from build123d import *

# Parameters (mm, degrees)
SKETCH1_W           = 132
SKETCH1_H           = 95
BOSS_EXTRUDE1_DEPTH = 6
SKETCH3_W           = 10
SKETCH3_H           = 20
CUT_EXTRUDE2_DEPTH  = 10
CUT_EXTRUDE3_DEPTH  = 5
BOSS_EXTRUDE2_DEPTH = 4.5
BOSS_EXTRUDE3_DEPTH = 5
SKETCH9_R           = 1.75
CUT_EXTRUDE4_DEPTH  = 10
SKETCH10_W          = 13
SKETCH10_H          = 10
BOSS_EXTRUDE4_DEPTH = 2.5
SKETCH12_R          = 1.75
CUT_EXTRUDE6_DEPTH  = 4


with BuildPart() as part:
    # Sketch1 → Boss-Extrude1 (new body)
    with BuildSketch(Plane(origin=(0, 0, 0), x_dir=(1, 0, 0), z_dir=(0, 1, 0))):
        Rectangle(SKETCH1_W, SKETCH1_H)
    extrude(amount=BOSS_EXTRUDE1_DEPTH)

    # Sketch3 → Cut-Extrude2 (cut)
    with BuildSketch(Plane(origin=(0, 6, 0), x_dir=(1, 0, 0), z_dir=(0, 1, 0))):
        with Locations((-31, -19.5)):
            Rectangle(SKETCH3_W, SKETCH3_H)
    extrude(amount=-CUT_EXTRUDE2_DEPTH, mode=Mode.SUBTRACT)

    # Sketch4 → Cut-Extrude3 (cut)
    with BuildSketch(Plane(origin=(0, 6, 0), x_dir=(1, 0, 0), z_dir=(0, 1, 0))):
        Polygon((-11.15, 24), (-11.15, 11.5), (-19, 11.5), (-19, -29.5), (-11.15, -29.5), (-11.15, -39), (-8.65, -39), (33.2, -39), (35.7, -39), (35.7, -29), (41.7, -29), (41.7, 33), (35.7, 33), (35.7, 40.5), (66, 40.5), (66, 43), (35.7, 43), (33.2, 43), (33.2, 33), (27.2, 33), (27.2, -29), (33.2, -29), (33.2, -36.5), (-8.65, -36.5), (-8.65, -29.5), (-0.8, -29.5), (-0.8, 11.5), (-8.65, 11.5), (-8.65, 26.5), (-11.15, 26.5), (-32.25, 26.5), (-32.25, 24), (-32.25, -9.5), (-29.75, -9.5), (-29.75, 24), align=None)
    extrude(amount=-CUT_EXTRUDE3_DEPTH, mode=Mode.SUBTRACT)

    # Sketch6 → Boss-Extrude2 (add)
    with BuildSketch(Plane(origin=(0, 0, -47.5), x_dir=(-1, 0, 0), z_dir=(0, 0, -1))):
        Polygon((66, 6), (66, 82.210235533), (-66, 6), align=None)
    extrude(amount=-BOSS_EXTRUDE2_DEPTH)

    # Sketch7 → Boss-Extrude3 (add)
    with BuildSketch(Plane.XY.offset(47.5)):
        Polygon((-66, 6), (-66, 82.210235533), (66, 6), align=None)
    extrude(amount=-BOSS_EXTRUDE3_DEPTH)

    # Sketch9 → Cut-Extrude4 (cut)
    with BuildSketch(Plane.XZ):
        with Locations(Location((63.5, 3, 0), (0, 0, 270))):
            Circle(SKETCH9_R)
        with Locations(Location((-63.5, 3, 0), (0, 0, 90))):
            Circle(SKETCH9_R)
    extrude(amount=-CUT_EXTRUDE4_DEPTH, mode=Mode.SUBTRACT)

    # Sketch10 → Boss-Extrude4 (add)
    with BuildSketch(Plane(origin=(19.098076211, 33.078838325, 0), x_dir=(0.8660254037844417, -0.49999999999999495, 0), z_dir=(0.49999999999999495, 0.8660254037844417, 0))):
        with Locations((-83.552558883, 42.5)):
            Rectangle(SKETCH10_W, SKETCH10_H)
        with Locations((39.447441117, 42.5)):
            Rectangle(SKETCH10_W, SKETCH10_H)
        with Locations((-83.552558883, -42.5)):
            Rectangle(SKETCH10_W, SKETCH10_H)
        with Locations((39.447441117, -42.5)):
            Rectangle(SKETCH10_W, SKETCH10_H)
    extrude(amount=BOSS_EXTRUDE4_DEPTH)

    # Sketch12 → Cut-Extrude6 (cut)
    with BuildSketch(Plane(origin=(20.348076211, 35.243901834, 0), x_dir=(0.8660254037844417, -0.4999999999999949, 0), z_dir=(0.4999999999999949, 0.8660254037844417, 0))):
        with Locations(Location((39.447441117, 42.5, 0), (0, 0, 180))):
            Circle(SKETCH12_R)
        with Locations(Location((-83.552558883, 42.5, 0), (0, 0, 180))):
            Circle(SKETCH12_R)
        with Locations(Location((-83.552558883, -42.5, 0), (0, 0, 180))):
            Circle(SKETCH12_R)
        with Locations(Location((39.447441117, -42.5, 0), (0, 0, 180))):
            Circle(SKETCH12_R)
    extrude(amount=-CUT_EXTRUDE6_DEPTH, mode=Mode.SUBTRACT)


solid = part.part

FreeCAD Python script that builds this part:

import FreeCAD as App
import Part
import Sketcher
from FreeCAD import Vector
Q = App.Units.Quantity


def add_polygon(sketch, points):
    """Adds a closed chain of lines whose ends are joined by coincident constraints."""
    first, n = sketch.GeometryCount, len(points)
    for a, b in zip(points, points[1:] + points[:1]):
        sketch.addGeometry(Part.LineSegment(App.Vector(*a, 0), App.Vector(*b, 0)), False)
    for i in range(n):
        sketch.addConstraint(Sketcher.Constraint("Coincident", first + i, 2, first + (i + 1) % n, 1))

doc = App.newDocument("Part")
body = doc.addObject("PartDesign::Body", "Body")

# Sketch on XZ plane
sketch1 = body.newObject("Sketcher::SketchObject", "Sketch")
sketch1.AttachmentSupport = (doc.getObject("XZ_Plane"), [""])
sketch1.MapMode = "FlatFace"
add_polygon(sketch1, [(-66, -47.5), (-66, 47.5), (66, 47.5), (66, -47.5)])  # lines 0-3
sketch1.addConstraint(Sketcher.Constraint("Vertical", 0))
sketch1.addConstraint(Sketcher.Constraint("Horizontal", 1))
sketch1.addConstraint(Sketcher.Constraint("Vertical", 2))
sketch1.addConstraint(Sketcher.Constraint("Horizontal", 3))
sketch1.addConstraint(Sketcher.Constraint("Symmetric", 0, 2, 2, 2, -1, 1))
sketch1.addConstraint(Sketcher.Constraint("DistanceX", 1, 1, 1, 2, Q("132 mm")))
sketch1.addConstraint(Sketcher.Constraint("DistanceY", 0, 1, 0, 2, Q("95 mm")))
pad1 = body.newObject("PartDesign::Pad", "Pad")
pad1.Profile = sketch1
pad1.Length = 6
pad1.Reversed = True

# Sketch on XZ plane
sketch2 = body.newObject("Sketcher::SketchObject", "Sketch001")
sketch2.AttachmentSupport = (doc.getObject("XZ_Plane"), [""])
sketch2.MapMode = "FlatFace"
sketch2.AttachmentOffset = App.Placement(Vector(0, 0, -6), App.Rotation())
add_polygon(sketch2, [(-36, 9.5), (-36, 29.5), (-26, 29.5), (-26, 9.5)])  # lines 0-3
sketch2.addConstraint(Sketcher.Constraint("Vertical", 0))
sketch2.addConstraint(Sketcher.Constraint("Horizontal", 1))
sketch2.addConstraint(Sketcher.Constraint("Vertical", 2))
sketch2.addConstraint(Sketcher.Constraint("Horizontal", 3))
sketch2.addConstraint(Sketcher.Constraint("DistanceX", 1, 1, 1, 2, Q("10 mm")))
sketch2.addConstraint(Sketcher.Constraint("DistanceY", 0, 1, 0, 2, Q("20 mm")))
sketch2.addConstraint(Sketcher.Constraint("DistanceX", 0, 2, -1, 1, Q("36 mm")))
sketch2.addConstraint(Sketcher.Constraint("DistanceY", -1, 1, 0, 2, Q("29.5 mm")))
pocket1 = body.newObject("PartDesign::Pocket", "Pocket")
pocket1.Profile = sketch2
pocket1.Length = 10
pocket1.Reversed = True

# Sketch on XZ plane
sketch3 = body.newObject("Sketcher::SketchObject", "Sketch002")
sketch3.AttachmentSupport = (doc.getObject("XZ_Plane"), [""])
sketch3.MapMode = "FlatFace"
sketch3.AttachmentOffset = App.Placement(Vector(0, 0, -6), App.Rotation())
add_polygon(sketch3, [(-11.15, -24), (-11.15, -11.5), (-19, -11.5), (-19, 29.5), (-11.15, 29.5), (-11.15, 39), (35.7, 39), (35.7, 29), (41.7, 29), (41.7, -33), (35.7, -33), (35.7, -40.5), (66, -40.5), (66, -43), (33.2, -43), (33.2, -33), (27.2, -33), (27.2, 29), (33.2, 29), (33.2, 36.5), (-8.65, 36.5), (-8.65, 29.5), (-0.8, 29.5), (-0.8, -11.5), (-8.65, -11.5), (-8.65, -26.5), (-32.25, -26.5), (-32.25, 9.5), (-29.75, 9.5), (-29.75, -24)])  # lines 0-29
sketch3.addConstraint(Sketcher.Constraint("Vertical", 0))
sketch3.addConstraint(Sketcher.Constraint("Horizontal", 1))
sketch3.addConstraint(Sketcher.Constraint("Vertical", 2))
sketch3.addConstraint(Sketcher.Constraint("Horizontal", 3))
sketch3.addConstraint(Sketcher.Constraint("Vertical", 4))
sketch3.addConstraint(Sketcher.Constraint("Horizontal", 5))
sketch3.addConstraint(Sketcher.Constraint("Vertical", 6))
sketch3.addConstraint(Sketcher.Constraint("Horizontal", 7))
sketch3.addConstraint(Sketcher.Constraint("Vertical", 8))
sketch3.addConstraint(Sketcher.Constraint("Horizontal", 9))
sketch3.addConstraint(Sketcher.Constraint("Vertical", 10))
sketch3.addConstraint(Sketcher.Constraint("Horizontal", 11))
sketch3.addConstraint(Sketcher.Constraint("Vertical", 12))
sketch3.addConstraint(Sketcher.Constraint("Horizontal", 13))
sketch3.addConstraint(Sketcher.Constraint("Vertical", 14))
sketch3.addConstraint(Sketcher.Constraint("Horizontal", 15))
sketch3.addConstraint(Sketcher.Constraint("Vertical", 16))
sketch3.addConstraint(Sketcher.Constraint("Horizontal", 17))
sketch3.addConstraint(Sketcher.Constraint("Vertical", 18))
sketch3.addConstraint(Sketcher.Constraint("Horizontal", 19))
sketch3.addConstraint(Sketcher.Constraint("Vertical", 20))
sketch3.addConstraint(Sketcher.Constraint("Horizontal", 21))
sketch3.addConstraint(Sketcher.Constraint("Vertical", 22))
sketch3.addConstraint(Sketcher.Constraint("Horizontal", 23))
sketch3.addConstraint(Sketcher.Constraint("Vertical", 24))
sketch3.addConstraint(Sketcher.Constraint("Horizontal", 25))
sketch3.addConstraint(Sketcher.Constraint("Vertical", 26))
sketch3.addConstraint(Sketcher.Constraint("Horizontal", 27))
sketch3.addConstraint(Sketcher.Constraint("Vertical", 28))
sketch3.addConstraint(Sketcher.Constraint("Horizontal", 29))
sketch3.addConstraint(Sketcher.Constraint("Horizontal", 9, 2, 14, 2))
sketch3.addConstraint(Sketcher.Constraint("Horizontal", 7, 2, 16, 2))
sketch3.addConstraint(Sketcher.Constraint("Horizontal", 3, 2, 20, 2))
sketch3.addConstraint(Sketcher.Constraint("Horizontal", 1, 2, 22, 2))
sketch3.addConstraint(Sketcher.Constraint("Vertical", 0, 2, 3, 2))
sketch3.addConstraint(Sketcher.Constraint("Vertical", 6, 2, 9, 2))
sketch3.addConstraint(Sketcher.Constraint("Vertical", 14, 2, 17, 2))
sketch3.addConstraint(Sketcher.Constraint("Vertical", 20, 2, 23, 2))
sketch3.addConstraint(Sketcher.Constraint("Equal", 9, 15))
sketch3.addConstraint(Sketcher.Constraint("Equal", 3, 21))
sketch3.addConstraint(Sketcher.Constraint("Equal", 27, 12))
sketch3.addConstraint(Sketcher.Constraint("Equal", 6, 14))
sketch3.addConstraint(Sketcher.Constraint("Equal", 10, 18))
sketch3.addConstraint(Sketcher.Constraint("DistanceX", 7, 1, 7, 2, Q("6 mm")))
sketch3.addConstraint(Sketcher.Constraint("DistanceY", 2, 1, 2, 2, Q("41 mm")))
sketch3.addConstraint(Sketcher.Constraint("DistanceY", 6, 2, 6, 1, Q("10 mm")))
sketch3.addConstraint(Sketcher.Constraint("DistanceY", 8, 2, 8, 1, Q("62 mm")))
sketch3.addConstraint(Sketcher.Constraint("DistanceY", 20, 2, 20, 1, Q("7 mm")))
sketch3.addConstraint(Sketcher.Constraint("DistanceY", 24, 2, 24, 1, Q("15 mm")))
sketch3.addConstraint(Sketcher.Constraint("DistanceY", 26, 1, 26, 2, Q("36 mm")))
sketch3.addConstraint(Sketcher.Constraint("DistanceX", 11, 1, 11, 2, Q("30.3 mm")))
sketch3.addConstraint(Sketcher.Constraint("DistanceX", 13, 2, 13, 1, Q("32.8 mm")))
sketch3.addConstraint(Sketcher.Constraint("DistanceX", 25, 2, 25, 1, Q("23.6 mm")))
sketch3.addConstraint(Sketcher.Constraint("DistanceX", 27, 1, 27, 2, Q("2.5 mm")))
sketch3.addConstraint(Sketcher.Constraint("DistanceX", 29, 1, 29, 2, Q("18.6 mm")))
sketch3.addConstraint(Sketcher.Constraint("DistanceY", 0, 1, 0, 2, Q("12.5 mm")))
sketch3.addConstraint(Sketcher.Constraint("DistanceX", 1, 2, -1, 1, Q("19 mm")))
sketch3.addConstraint(Sketcher.Constraint("DistanceY", -1, 1, 4, 2, Q("39 mm")))
sketch3.addConstraint(Sketcher.Constraint("DistanceX", -1, 1, 11, 2, Q("66 mm")))
sketch3.addConstraint(Sketcher.Constraint("DistanceX", 22, 2, 15, 2, Q("28 mm")))
pocket2 = body.newObject("PartDesign::Pocket", "Pocket001")
pocket2.Profile = sketch3
pocket2.Length = 5
pocket2.Reversed = True

# Sketch on XY plane
sketch4 = body.newObject("Sketcher::SketchObject", "Sketch003")
sketch4.AttachmentSupport = (doc.getObject("XY_Plane"), [""])
sketch4.MapMode = "FlatFace"
sketch4.AttachmentOffset = App.Placement(Vector(0, 0, -47.5), App.Rotation())
add_polygon(sketch4, [(-66, 6), (-66, 82.210236), (66, 6)])  # lines 0-2
sketch4.addConstraint(Sketcher.Constraint("Vertical", 0))
sketch4.addConstraint(Sketcher.Constraint("Horizontal", 2))
sketch4.addConstraint(Sketcher.Constraint("DistanceX", 2, 2, 2, 1, Q("132 mm")))
sketch4.addConstraint(Sketcher.Constraint("Angle", 1, Q("-30 deg")))
sketch4.addConstraint(Sketcher.Constraint("DistanceX", 0, 2, -1, 1, Q("66 mm")))
sketch4.addConstraint(Sketcher.Constraint("DistanceY", -1, 1, 1, 2, Q("6 mm")))
pad2 = body.newObject("PartDesign::Pad", "Pad001")
pad2.Profile = sketch4
pad2.Length = 4.5

# Sketch on XY plane
sketch5 = body.newObject("Sketcher::SketchObject", "Sketch004")
sketch5.AttachmentSupport = (doc.getObject("XY_Plane"), [""])
sketch5.MapMode = "FlatFace"
sketch5.AttachmentOffset = App.Placement(Vector(0, 0, 47.5), App.Rotation())
add_polygon(sketch5, [(-66, 82.210236), (-66, 6), (66, 6)])  # lines 0-2
sketch5.addConstraint(Sketcher.Constraint("Vertical", 0))
sketch5.addConstraint(Sketcher.Constraint("Horizontal", 1))
sketch5.addConstraint(Sketcher.Constraint("DistanceX", 1, 1, 1, 2, Q("132 mm")))
sketch5.addConstraint(Sketcher.Constraint("Angle", 2, Q("150 deg")))
sketch5.addConstraint(Sketcher.Constraint("DistanceX", 0, 2, -1, 1, Q("66 mm")))
sketch5.addConstraint(Sketcher.Constraint("DistanceY", -1, 1, 0, 2, Q("6 mm")))
pad3 = body.newObject("PartDesign::Pad", "Pad002")
pad3.Profile = sketch5
pad3.Length = 5
pad3.Reversed = True

# Sketch on XZ plane
sketch6 = body.newObject("Sketcher::SketchObject", "Sketch005")
sketch6.AttachmentSupport = (doc.getObject("XZ_Plane"), [""])
sketch6.MapMode = "FlatFace"
sketch6.addGeometry(Part.Circle(Vector(63.5, 3, 0), Vector(0, 0, 1), 1.75), False)
sketch6.addGeometry(Part.Circle(Vector(-63.5, 3, 0), Vector(0, 0, 1), 1.75), False)
sketch6.addConstraint(Sketcher.Constraint("Equal", 0, 1))
sketch6.addConstraint(Sketcher.Constraint("Symmetric", 0, 3, 1, 3, -2))
sketch6.addConstraint(Sketcher.Constraint("Diameter", 0, Q("3.5 mm")))
sketch6.addConstraint(Sketcher.Constraint("DistanceY", -1, 1, 0, 3, Q("3 mm")))
sketch6.addConstraint(Sketcher.Constraint("DistanceX", 1, 3, 0, 3, Q("127 mm")))
pocket3 = body.newObject("PartDesign::Pocket", "Pocket002")
pocket3.Profile = sketch6
pocket3.Length = 10

# Sketch on an angled plane
sketch7 = body.newObject("Sketcher::SketchObject", "Sketch006")
sketch7.Placement = App.Placement(Vector(19.098076, 33.078838, 0), App.Rotation(Vector(0.866025404, -0.5, 0), Vector(0, 0, -1), Vector(0.5, 0.866025404, 0), "ZXY"))
add_polygon(sketch7, [(-90.052559, 47.5), (-90.052559, 37.5), (-77.052559, 37.5), (-77.052559, 47.5)])  # lines 0-3
add_polygon(sketch7, [(32.947441, 47.5), (32.947441, 37.5), (45.947441, 37.5), (45.947441, 47.5)])  # lines 4-7
add_polygon(sketch7, [(-90.052559, -37.5), (-90.052559, -47.5), (-77.052559, -47.5), (-77.052559, -37.5)])  # lines 8-11
add_polygon(sketch7, [(32.947441, -37.5), (32.947441, -47.5), (45.947441, -47.5), (45.947441, -37.5)])  # lines 12-15
sketch7.addConstraint(Sketcher.Constraint("Vertical", 0))
sketch7.addConstraint(Sketcher.Constraint("Horizontal", 1))
sketch7.addConstraint(Sketcher.Constraint("Vertical", 2))
sketch7.addConstraint(Sketcher.Constraint("Horizontal", 3))
sketch7.addConstraint(Sketcher.Constraint("Vertical", 4))
sketch7.addConstraint(Sketcher.Constraint("Horizontal", 5))
sketch7.addConstraint(Sketcher.Constraint("Vertical", 6))
sketch7.addConstraint(Sketcher.Constraint("Horizontal", 7))
sketch7.addConstraint(Sketcher.Constraint("Vertical", 8))
sketch7.addConstraint(Sketcher.Constraint("Horizontal", 9))
sketch7.addConstraint(Sketcher.Constraint("Vertical", 10))
sketch7.addConstraint(Sketcher.Constraint("Horizontal", 11))
sketch7.addConstraint(Sketcher.Constraint("Vertical", 12))
sketch7.addConstraint(Sketcher.Constraint("Horizontal", 13))
sketch7.addConstraint(Sketcher.Constraint("Vertical", 14))
sketch7.addConstraint(Sketcher.Constraint("Horizontal", 15))
sketch7.addConstraint(Sketcher.Constraint("Symmetric", 3, 2, 8, 2, -1))
sketch7.addConstraint(Sketcher.Constraint("Symmetric", 1, 2, 10, 2, -1))
sketch7.addConstraint(Sketcher.Constraint("Symmetric", 7, 2, 12, 2, -1))
sketch7.addConstraint(Sketcher.Constraint("Symmetric", 5, 2, 14, 2, -1))
sketch7.addConstraint(Sketcher.Constraint("Horizontal", 1, 2, 4, 2))
sketch7.addConstraint(Sketcher.Constraint("Horizontal", 3, 2, 6, 2))
sketch7.addConstraint(Sketcher.Constraint("Equal", 3, 5))
sketch7.addConstraint(Sketcher.Constraint("DistanceX", 1, 1, 1, 2, Q("13 mm")))
sketch7.addConstraint(Sketcher.Constraint("DistanceY", 0, 2, 0, 1, Q("10 mm")))
sketch7.addConstraint(Sketcher.Constraint("DistanceX", 1, 2, 4, 2, Q("110 mm")))
sketch7.addConstraint(Sketcher.Constraint("DistanceY", 8, 2, 0, 2, Q("85 mm")))
sketch7.addConstraint(Sketcher.Constraint("DistanceX", 0, 2, -1, 1, Q("90.052559 mm")))
pad4 = body.newObject("PartDesign::Pad", "Pad003")
pad4.Profile = sketch7
pad4.Length = 2.5

# Sketch on an angled plane
sketch8 = body.newObject("Sketcher::SketchObject", "Sketch007")
sketch8.Placement = App.Placement(Vector(20.348076, 35.243902, 0), App.Rotation(Vector(0.866025404, -0.5, 0), Vector(0, 0, -1), Vector(0.5, 0.866025404, 0), "ZXY"))
sketch8.addGeometry(Part.Circle(Vector(39.447441, 42.5, 0), Vector(0, 0, 1), 1.75), False)
sketch8.addGeometry(Part.Circle(Vector(-83.552559, 42.5, 0), Vector(0, 0, 1), 1.75), False)
sketch8.addGeometry(Part.Circle(Vector(-83.552559, -42.5, 0), Vector(0, 0, 1), 1.75), False)
sketch8.addGeometry(Part.Circle(Vector(39.447441, -42.5, 0), Vector(0, 0, 1), 1.75), False)
sketch8.addConstraint(Sketcher.Constraint("Equal", 0, 1))
sketch8.addConstraint(Sketcher.Constraint("Equal", 1, 2))
sketch8.addConstraint(Sketcher.Constraint("Equal", 2, 3))
sketch8.addConstraint(Sketcher.Constraint("Symmetric", 1, 3, 2, 3, -1))
sketch8.addConstraint(Sketcher.Constraint("Symmetric", 0, 3, 3, 3, -1))
sketch8.addConstraint(Sketcher.Constraint("Horizontal", 0, 3, 1, 3))
sketch8.addConstraint(Sketcher.Constraint("Diameter", 0, Q("3.5 mm")))
sketch8.addConstraint(Sketcher.Constraint("DistanceX", 1, 3, 0, 3, Q("123 mm")))
sketch8.addConstraint(Sketcher.Constraint("DistanceY", 2, 3, 1, 3, Q("85 mm")))
sketch8.addConstraint(Sketcher.Constraint("DistanceX", -1, 1, 0, 3, Q("39.447441 mm")))
pocket4 = body.newObject("PartDesign::Pocket", "Pocket003")
pocket4.Profile = sketch8
pocket4.Length = 4

doc.recompute()
